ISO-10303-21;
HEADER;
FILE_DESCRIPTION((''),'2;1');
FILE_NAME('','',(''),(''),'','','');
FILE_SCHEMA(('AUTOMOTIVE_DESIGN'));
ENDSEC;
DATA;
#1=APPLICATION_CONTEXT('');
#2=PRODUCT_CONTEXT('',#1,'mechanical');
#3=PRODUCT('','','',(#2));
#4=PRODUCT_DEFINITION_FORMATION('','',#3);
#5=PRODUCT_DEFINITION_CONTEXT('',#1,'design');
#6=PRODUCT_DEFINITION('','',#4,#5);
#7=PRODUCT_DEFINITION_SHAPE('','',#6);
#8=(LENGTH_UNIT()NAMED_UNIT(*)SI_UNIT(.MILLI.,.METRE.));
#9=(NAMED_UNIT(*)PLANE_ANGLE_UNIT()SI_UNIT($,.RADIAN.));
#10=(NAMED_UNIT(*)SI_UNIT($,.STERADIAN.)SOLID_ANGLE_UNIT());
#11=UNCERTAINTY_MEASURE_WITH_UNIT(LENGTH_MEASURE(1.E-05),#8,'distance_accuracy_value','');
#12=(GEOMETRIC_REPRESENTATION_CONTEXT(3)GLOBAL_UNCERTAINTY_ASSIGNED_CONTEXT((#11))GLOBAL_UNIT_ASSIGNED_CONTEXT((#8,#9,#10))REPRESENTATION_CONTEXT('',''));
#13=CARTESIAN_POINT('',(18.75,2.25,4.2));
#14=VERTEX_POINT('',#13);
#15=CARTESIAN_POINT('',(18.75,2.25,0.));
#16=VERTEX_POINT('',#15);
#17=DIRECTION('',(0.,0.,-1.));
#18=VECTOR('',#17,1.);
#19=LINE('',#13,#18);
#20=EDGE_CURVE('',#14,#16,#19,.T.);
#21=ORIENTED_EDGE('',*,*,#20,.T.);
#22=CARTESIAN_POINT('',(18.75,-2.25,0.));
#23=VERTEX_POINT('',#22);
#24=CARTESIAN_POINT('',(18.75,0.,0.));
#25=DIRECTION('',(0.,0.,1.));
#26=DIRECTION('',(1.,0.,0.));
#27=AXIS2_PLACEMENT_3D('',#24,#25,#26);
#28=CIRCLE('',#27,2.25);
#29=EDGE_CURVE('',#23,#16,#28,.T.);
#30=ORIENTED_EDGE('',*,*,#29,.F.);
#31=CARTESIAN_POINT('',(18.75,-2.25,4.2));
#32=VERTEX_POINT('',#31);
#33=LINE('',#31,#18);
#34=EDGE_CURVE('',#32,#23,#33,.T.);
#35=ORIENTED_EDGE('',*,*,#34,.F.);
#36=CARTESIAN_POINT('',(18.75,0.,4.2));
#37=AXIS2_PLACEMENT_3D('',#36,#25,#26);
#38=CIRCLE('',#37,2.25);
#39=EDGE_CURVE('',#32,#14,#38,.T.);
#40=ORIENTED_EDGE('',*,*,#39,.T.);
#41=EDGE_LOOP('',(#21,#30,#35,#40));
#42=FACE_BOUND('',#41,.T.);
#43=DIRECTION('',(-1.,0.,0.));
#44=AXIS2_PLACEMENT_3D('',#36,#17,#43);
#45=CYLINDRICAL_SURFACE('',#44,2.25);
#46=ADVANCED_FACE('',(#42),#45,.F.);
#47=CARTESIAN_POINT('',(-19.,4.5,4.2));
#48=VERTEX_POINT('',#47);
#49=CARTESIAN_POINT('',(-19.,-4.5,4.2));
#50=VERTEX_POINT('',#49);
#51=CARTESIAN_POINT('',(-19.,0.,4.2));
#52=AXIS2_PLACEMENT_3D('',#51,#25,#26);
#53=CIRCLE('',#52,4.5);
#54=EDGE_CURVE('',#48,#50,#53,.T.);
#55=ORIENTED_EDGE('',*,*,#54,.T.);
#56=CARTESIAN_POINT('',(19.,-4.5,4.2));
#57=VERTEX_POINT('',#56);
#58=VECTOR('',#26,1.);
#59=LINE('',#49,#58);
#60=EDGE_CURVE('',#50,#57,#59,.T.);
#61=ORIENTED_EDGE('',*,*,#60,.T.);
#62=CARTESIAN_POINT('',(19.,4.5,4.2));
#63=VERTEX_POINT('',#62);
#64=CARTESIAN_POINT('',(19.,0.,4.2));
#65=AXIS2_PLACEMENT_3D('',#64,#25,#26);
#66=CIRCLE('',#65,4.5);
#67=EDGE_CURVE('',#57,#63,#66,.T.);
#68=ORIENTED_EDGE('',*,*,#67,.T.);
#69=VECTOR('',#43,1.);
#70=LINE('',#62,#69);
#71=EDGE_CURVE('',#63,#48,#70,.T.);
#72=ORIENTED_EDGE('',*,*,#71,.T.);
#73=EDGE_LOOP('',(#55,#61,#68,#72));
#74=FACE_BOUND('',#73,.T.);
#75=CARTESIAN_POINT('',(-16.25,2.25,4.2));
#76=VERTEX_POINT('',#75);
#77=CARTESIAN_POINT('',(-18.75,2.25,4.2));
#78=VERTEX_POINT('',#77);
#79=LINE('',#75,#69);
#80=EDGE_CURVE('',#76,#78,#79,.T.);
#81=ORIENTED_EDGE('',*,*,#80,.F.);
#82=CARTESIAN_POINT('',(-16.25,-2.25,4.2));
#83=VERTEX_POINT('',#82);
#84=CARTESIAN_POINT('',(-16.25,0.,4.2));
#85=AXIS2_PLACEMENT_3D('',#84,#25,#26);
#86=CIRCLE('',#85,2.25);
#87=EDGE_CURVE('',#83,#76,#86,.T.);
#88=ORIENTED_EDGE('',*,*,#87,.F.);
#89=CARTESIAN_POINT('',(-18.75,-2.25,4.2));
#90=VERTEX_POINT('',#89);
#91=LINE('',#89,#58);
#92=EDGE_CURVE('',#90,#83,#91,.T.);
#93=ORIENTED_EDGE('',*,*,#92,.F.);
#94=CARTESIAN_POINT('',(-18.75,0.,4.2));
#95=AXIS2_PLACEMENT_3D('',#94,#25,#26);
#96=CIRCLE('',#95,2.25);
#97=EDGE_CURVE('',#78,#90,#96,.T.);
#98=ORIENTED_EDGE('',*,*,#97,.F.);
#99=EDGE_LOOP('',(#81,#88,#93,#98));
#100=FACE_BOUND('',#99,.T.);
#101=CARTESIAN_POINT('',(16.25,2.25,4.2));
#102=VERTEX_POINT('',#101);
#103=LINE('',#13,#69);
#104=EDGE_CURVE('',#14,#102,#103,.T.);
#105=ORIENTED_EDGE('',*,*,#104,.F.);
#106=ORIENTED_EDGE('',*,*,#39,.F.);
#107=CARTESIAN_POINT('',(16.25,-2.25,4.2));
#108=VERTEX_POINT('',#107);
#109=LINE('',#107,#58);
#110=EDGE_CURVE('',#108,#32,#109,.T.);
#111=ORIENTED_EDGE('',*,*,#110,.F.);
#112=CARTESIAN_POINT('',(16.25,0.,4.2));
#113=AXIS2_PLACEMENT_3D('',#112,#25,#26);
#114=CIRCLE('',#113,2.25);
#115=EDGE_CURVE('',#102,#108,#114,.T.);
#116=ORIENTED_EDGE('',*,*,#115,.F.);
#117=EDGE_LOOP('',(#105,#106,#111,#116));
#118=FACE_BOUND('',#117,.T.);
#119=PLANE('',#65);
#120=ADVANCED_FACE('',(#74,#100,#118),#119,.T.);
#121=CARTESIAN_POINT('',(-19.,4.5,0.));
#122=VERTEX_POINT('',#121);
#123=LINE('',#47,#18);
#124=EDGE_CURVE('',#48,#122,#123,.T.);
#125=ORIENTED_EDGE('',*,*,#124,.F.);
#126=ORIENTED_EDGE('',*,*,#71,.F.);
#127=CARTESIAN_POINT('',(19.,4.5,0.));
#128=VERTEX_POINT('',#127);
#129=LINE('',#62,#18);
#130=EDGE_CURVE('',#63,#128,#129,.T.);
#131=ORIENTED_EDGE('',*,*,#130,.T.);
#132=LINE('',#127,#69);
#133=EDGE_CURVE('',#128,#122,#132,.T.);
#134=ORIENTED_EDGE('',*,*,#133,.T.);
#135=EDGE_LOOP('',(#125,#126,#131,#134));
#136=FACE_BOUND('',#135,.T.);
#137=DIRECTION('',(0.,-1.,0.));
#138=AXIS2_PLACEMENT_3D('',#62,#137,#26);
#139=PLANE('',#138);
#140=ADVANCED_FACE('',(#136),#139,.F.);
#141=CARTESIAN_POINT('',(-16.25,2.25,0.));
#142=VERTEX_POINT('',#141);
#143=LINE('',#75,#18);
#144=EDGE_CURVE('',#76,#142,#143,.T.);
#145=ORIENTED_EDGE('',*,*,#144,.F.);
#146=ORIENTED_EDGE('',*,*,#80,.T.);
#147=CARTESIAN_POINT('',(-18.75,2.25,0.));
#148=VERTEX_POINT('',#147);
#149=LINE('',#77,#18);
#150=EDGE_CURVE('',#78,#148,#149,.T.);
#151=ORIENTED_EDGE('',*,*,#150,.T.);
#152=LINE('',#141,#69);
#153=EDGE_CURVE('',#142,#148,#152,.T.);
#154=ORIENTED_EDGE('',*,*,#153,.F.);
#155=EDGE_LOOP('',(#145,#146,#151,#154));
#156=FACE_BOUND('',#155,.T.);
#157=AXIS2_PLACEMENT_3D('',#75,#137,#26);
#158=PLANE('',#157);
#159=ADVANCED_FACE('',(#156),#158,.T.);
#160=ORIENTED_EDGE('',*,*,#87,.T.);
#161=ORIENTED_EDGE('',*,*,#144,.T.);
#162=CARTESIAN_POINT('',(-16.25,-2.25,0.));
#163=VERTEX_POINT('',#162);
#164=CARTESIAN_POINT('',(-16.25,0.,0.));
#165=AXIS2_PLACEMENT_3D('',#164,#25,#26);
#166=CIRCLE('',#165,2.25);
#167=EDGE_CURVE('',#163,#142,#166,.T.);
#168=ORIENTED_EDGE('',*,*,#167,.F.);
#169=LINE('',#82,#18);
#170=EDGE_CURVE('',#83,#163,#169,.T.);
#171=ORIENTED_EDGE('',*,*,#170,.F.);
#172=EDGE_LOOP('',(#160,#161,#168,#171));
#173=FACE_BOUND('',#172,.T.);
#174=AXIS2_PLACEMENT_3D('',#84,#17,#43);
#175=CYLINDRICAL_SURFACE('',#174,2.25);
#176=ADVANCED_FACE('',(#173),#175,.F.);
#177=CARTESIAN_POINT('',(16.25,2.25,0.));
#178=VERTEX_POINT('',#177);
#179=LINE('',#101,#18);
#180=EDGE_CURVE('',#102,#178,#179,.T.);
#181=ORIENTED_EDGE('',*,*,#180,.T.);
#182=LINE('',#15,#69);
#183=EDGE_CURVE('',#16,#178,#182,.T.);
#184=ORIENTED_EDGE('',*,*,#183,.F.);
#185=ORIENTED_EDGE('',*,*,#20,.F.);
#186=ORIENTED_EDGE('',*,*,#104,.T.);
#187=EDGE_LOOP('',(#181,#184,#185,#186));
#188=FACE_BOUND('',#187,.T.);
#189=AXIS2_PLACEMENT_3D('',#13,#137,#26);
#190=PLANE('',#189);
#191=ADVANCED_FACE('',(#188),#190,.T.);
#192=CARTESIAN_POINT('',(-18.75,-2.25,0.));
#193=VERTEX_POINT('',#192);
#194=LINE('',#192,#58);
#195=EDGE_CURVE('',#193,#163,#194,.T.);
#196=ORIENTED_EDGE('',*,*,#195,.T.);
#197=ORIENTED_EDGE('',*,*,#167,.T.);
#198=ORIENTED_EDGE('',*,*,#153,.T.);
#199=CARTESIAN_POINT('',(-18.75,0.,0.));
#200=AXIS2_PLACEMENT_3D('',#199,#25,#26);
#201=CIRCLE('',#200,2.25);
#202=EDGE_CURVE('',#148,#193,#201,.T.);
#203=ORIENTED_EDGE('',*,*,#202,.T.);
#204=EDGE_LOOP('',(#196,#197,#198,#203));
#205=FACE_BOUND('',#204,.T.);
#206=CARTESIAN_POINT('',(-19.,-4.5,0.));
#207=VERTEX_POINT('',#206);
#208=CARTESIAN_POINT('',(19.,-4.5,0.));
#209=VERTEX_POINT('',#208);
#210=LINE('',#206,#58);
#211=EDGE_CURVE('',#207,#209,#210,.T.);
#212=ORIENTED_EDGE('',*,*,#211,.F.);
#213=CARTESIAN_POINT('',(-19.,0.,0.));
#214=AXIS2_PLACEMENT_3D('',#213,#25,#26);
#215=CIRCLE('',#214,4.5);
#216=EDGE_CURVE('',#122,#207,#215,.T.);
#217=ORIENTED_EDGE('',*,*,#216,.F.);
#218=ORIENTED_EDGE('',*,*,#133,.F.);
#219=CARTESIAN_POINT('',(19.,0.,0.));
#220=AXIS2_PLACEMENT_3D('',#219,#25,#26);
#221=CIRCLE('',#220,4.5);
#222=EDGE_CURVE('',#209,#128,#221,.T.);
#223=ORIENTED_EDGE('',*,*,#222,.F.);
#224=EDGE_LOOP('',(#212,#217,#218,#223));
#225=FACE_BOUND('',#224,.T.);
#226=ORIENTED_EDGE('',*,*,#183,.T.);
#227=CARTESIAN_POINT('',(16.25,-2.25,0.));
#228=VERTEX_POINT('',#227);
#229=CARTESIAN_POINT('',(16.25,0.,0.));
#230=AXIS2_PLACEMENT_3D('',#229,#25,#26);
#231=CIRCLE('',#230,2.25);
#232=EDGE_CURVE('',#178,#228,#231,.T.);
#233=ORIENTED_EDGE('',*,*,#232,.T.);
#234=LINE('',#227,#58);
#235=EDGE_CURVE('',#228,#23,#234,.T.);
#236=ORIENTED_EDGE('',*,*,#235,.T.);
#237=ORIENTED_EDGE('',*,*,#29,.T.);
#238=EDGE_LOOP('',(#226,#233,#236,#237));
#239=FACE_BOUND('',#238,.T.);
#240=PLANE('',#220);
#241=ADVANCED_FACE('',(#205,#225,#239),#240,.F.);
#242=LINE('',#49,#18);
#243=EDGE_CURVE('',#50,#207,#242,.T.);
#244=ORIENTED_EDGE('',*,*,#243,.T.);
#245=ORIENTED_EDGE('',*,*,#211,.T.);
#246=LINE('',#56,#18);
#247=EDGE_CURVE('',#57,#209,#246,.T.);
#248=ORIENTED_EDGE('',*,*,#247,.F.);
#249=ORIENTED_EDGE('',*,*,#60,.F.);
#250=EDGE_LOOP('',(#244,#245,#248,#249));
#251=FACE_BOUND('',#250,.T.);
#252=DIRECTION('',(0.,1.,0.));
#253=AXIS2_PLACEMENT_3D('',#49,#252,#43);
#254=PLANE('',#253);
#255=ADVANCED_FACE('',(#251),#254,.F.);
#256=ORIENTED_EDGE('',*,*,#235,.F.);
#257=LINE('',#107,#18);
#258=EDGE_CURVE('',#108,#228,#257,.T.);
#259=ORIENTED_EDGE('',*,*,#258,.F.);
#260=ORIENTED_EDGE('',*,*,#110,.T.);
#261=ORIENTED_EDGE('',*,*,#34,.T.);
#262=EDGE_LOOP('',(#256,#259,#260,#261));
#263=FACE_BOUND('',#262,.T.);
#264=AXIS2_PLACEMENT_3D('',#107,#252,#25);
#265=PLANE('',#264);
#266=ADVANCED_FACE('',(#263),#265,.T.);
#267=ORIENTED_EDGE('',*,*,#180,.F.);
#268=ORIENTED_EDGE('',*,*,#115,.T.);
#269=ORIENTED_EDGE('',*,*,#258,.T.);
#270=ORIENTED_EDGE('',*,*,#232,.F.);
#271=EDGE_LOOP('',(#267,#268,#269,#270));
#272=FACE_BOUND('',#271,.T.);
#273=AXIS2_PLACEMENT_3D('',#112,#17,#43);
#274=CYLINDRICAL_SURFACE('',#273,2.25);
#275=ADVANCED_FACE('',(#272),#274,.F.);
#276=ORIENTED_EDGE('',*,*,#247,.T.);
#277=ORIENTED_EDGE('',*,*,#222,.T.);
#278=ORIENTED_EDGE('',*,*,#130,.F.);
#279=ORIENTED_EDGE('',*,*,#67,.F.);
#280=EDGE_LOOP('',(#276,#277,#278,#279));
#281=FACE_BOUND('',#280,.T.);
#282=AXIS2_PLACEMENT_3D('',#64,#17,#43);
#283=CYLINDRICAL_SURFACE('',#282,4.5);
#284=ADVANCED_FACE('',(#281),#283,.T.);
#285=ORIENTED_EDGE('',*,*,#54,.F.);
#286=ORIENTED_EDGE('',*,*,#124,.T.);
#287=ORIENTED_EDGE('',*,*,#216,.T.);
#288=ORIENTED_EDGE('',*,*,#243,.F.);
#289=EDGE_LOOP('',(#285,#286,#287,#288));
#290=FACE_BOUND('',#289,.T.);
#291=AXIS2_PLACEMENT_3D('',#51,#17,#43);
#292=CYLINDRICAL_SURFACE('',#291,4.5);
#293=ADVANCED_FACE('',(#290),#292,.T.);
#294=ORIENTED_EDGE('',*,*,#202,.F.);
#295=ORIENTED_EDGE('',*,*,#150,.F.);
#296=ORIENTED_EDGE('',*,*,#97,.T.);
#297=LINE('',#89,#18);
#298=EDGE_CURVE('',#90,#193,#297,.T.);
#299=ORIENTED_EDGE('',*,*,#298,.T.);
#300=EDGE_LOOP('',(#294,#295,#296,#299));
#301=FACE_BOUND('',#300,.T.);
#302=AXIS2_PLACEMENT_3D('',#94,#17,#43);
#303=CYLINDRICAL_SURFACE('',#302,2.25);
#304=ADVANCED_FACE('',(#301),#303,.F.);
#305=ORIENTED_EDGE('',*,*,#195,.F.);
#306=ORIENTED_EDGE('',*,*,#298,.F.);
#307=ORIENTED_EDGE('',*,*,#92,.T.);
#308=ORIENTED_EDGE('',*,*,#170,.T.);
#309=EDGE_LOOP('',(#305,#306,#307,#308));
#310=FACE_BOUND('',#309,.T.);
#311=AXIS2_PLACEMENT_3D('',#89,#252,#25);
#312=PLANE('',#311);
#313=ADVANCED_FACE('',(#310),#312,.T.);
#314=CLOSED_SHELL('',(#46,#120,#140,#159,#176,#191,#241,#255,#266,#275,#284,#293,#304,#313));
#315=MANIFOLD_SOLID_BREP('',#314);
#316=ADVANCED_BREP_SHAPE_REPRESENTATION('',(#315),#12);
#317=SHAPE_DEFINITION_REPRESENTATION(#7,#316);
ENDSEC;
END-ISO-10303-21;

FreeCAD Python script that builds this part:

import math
import FreeCAD as App
import Part
import Sketcher

V = App.Vector

doc = App.newDocument("Part")
body = doc.addObject("PartDesign::Body", "Body")

sketch1 = body.newObject("Sketcher::SketchObject", "Sketch")
sketch1.AttachmentSupport = (doc.getObject("XY_Plane"), [""])
sketch1.MapMode = "FlatFace"
sketch1.addGeometry([
    Part.LineSegment(V(19, 4.5, 0), V(-19, 4.5, 0)),
    Part.ArcOfCircle(Part.Circle(V(-19, 0, 0), V(0, 0, 1), 4.5), math.radians(90), math.radians(270)),
    Part.LineSegment(V(-19, -4.5, 0), V(19, -4.5, 0)),
    Part.ArcOfCircle(Part.Circle(V(19, 0, 0), V(0, 0, 1), 4.5), math.radians(-90), math.radians(90)),
    Part.LineSegment(V(-18.75, 2.25, 0), V(-16.25, 2.25, 0)),
    Part.ArcOfCircle(Part.Circle(V(-16.25, 0, 0), V(0, 0, 1), 2.25), math.radians(-90), math.radians(90)),
    Part.LineSegment(V(-16.25, -2.25, 0), V(-18.75, -2.25, 0)),
    Part.ArcOfCircle(Part.Circle(V(-18.75, 0, 0), V(0, 0, 1), 2.25), math.radians(90), math.radians(270)),
    Part.LineSegment(V(16.25, 2.25, 0), V(18.75, 2.25, 0)),
    Part.ArcOfCircle(Part.Circle(V(18.75, 0, 0), V(0, 0, 1), 2.25), math.radians(-90), math.radians(90)),
    Part.LineSegment(V(18.75, -2.25, 0), V(16.25, -2.25, 0)),
    Part.ArcOfCircle(Part.Circle(V(16.25, 0, 0), V(0, 0, 1), 2.25), math.radians(90), math.radians(270)),
], False)
sketch1.addConstraint([
    Sketcher.Constraint("Tangent", 0, 2, 1, 1),
    Sketcher.Constraint("Tangent", 1, 2, 2, 1),
    Sketcher.Constraint("Tangent", 2, 2, 3, 1),
    Sketcher.Constraint("Tangent", 3, 2, 0, 1),
    Sketcher.Constraint("Tangent", 4, 2, 5, 2),
    Sketcher.Constraint("Tangent", 5, 1, 6, 1),
    Sketcher.Constraint("Tangent", 6, 2, 7, 2),
    Sketcher.Constraint("Tangent", 7, 1, 4, 1),
    Sketcher.Constraint("Tangent", 8, 2, 9, 2),
    Sketcher.Constraint("Tangent", 9, 1, 10, 1),
    Sketcher.Constraint("Tangent", 10, 2, 11, 2),
    Sketcher.Constraint("Tangent", 11, 1, 8, 1),
    Sketcher.Constraint("Horizontal", 0),
    Sketcher.Constraint("Horizontal", 2),
    Sketcher.Constraint("Horizontal", 4),
    Sketcher.Constraint("Horizontal", 6),
    Sketcher.Constraint("Horizontal", 8),
    Sketcher.Constraint("Horizontal", 10),
    Sketcher.Constraint("Equal", 7, 9),
    Sketcher.Constraint("Symmetric", 1, 3, 3, 3, -1, 1),
    Sketcher.Constraint("Symmetric", 7, 3, 9, 3, -1, 1),
    Sketcher.Constraint("Symmetric", 5, 3, 11, 3, -2),
    Sketcher.Constraint("Radius", 1, 4.5),
    Sketcher.Constraint("DistanceX", 0, 2, 0, 1, 38.0),
    Sketcher.Constraint("Radius", 5, 2.25),
    Sketcher.Constraint("DistanceX", 4, 1, 4, 2, 2.5),
    Sketcher.Constraint("DistanceX", 5, 3, 9, 3, 35.0),
])
pad1 = body.newObject("PartDesign::Pad", "Pad")
pad1.Profile = sketch1
pad1.Length = 4.2

doc.recompute()
